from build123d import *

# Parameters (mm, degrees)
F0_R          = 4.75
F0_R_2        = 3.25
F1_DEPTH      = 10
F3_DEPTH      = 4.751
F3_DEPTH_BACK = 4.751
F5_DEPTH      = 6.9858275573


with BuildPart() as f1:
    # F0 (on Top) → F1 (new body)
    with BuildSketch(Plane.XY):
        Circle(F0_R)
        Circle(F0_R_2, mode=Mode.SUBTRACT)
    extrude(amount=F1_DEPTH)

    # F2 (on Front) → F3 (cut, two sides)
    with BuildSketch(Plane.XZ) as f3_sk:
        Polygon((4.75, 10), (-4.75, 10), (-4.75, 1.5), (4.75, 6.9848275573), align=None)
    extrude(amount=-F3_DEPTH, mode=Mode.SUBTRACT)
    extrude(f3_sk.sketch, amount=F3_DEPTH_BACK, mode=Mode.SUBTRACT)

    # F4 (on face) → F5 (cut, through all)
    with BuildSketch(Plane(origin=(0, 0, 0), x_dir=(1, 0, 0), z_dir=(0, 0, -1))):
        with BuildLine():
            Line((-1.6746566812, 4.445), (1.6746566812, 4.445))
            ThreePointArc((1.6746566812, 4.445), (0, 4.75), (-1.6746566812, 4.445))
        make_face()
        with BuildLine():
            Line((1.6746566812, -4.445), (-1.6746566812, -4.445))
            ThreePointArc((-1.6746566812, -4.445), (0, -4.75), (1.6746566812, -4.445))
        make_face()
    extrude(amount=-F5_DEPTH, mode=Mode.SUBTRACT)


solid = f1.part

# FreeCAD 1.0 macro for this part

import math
import FreeCAD as App
import Part
import Sketcher

V = App.Vector
Q = App.Units.Quantity


def add_polygon(sketch, points):
    """Adds a closed chain of lines whose ends are joined by coincident constraints."""
    first, n = sketch.GeometryCount, len(points)
    for a, b in zip(points, points[1:] + points[:1]):
        sketch.addGeometry(Part.LineSegment(App.Vector(*a, 0), App.Vector(*b, 0)), False)
    for i in range(n):
        sketch.addConstraint(Sketcher.Constraint("Coincident", first + i, 2, first + (i + 1) % n, 1))

doc = App.newDocument("Part")
params = doc.addObject("Spreadsheet::Sheet", "Params")
for row, (alias, value) in enumerate([
    ("sketch1_diameter", "9.5 mm"),
    ("sketch1_diameter2", "6.5 mm"),
    ("pad1_length", "10 mm"),
    ("sketch2_width", "9.5 mm"),
    ("sketch2_height", "8.5 mm"),
    ("sketch3_radius", "4.75 mm"),
], start=1):
    params.set(f"A{row}", alias)
    params.set(f"B{row}", "=" + value)
    params.setAlias(f"B{row}", alias)

body = doc.addObject("PartDesign::Body", "Body")

# Sketch on XY plane
sketch1 = body.newObject("Sketcher::SketchObject", "Sketch")
sketch1.AttachmentSupport = (doc.getObject("XY_Plane"), [""])
sketch1.MapMode = "FlatFace"
sketch1.addGeometry([
    Part.Circle(V(0, 0, 0), V(0, 0, 1), 4.8),
    Part.Circle(V(0, 0, 0), V(0, 0, 1), 3.2),
], False)
sketch1.addConstraint([
    Sketcher.Constraint("Coincident", 0, 3, -1, 1),
    Sketcher.Constraint("Coincident", 1, 3, -1, 1),
    Sketcher.Constraint("Diameter", 0, Q("9.5 mm")),
    Sketcher.Constraint("Diameter", 1, Q("6.5 mm")),
])
sketch1.setExpression("Constraints[2]", "Params.sketch1_diameter")
sketch1.setExpression("Constraints[3]", "Params.sketch1_diameter2")
pad1 = body.newObject("PartDesign::Pad", "Pad")
pad1.Profile = sketch1
pad1.setExpression("Length", "Params.pad1_length")

# Sketch on XZ plane
sketch2 = body.newObject("Sketcher::SketchObject", "Sketch001")
sketch2.AttachmentSupport = (doc.getObject("XZ_Plane"), [""])
sketch2.MapMode = "FlatFace"
add_polygon(sketch2, [(4.8, 10), (-4.8, 10), (-4.8, 1.5), (4.8, 7)])  # lines 0-3
sketch2.addConstraint([
    Sketcher.Constraint("Horizontal", 0),
    Sketcher.Constraint("Vertical", 1),
    Sketcher.Constraint("Vertical", 3),
    Sketcher.Constraint("Angle", 2, Q("30 deg")),
    Sketcher.Constraint("DistanceX", 0, 2, 0, 1, Q("9.5 mm")),
    Sketcher.Constraint("DistanceY", 1, 2, 1, 1, Q("8.5 mm")),
    Sketcher.Constraint("DistanceY", -1, 1, 0, 2, Q("10 mm")),
    Sketcher.Constraint("DistanceX", 0, 2, -1, 1, Q("4.75 mm")),
])
sketch2.setExpression("Constraints[8]", "Params.sketch2_width")
sketch2.setExpression("Constraints[9]", "Params.sketch2_height")
pocket1 = body.newObject("PartDesign::Pocket", "Pocket")
pocket1.Profile = sketch2
pocket1.Type = "ThroughAll"
pocket1.Midplane = True

# Sketch on XY plane
sketch3 = body.newObject("Sketcher::SketchObject", "Sketch002")
sketch3.AttachmentSupport = (doc.getObject("XY_Plane"), [""])
sketch3.MapMode = "FlatFace"
sketch3.addGeometry([
    Part.LineSegment(V(-1.7, -4.4, 0), V(1.7, -4.4, 0)),
    Part.ArcOfCircle(Part.Circle(V(0, 0, 0), V(0, 0, 1), 4.8), math.radians(-111), math.radians(-69)),
    Part.LineSegment(V(1.7, 4.4, 0), V(-1.7, 4.4, 0)),
    Part.ArcOfCircle(Part.Circle(V(0, 0, 0), V(0, 0, 1), 4.8), math.radians(69), math.radians(111)),
], False)
sketch3.addConstraint([
    Sketcher.Constraint("Coincident", 0, 1, 1, 1),
    Sketcher.Constraint("Coincident", 1, 2, 0, 2),
    Sketcher.Constraint("Coincident", 2, 1, 3, 1),
    Sketcher.Constraint("Coincident", 3, 2, 2, 2),
    Sketcher.Constraint("Horizontal", 0),
    Sketcher.Constraint("Horizontal", 2),
    Sketcher.Constraint("Coincident", 1, 3, -1, 1),
    Sketcher.Constraint("Coincident", 3, 3, -1, 1),
    Sketcher.Constraint("Equal", 1, 3),
    Sketcher.Constraint("Vertical", 1, 2, 2, 1),
    Sketcher.Constraint("Radius", 1, Q("4.75 mm")),
    Sketcher.Constraint("DistanceY", 1, 2, 2, 1, Q("8.89 mm")),
])
sketch3.setExpression("Constraints[10]", "Params.sketch3_radius")
pocket2 = body.newObject("PartDesign::Pocket", "Pocket001")
pocket2.Profile = sketch3
pocket2.Type = "ThroughAll"
pocket2.Reversed = True

doc.recompute()
